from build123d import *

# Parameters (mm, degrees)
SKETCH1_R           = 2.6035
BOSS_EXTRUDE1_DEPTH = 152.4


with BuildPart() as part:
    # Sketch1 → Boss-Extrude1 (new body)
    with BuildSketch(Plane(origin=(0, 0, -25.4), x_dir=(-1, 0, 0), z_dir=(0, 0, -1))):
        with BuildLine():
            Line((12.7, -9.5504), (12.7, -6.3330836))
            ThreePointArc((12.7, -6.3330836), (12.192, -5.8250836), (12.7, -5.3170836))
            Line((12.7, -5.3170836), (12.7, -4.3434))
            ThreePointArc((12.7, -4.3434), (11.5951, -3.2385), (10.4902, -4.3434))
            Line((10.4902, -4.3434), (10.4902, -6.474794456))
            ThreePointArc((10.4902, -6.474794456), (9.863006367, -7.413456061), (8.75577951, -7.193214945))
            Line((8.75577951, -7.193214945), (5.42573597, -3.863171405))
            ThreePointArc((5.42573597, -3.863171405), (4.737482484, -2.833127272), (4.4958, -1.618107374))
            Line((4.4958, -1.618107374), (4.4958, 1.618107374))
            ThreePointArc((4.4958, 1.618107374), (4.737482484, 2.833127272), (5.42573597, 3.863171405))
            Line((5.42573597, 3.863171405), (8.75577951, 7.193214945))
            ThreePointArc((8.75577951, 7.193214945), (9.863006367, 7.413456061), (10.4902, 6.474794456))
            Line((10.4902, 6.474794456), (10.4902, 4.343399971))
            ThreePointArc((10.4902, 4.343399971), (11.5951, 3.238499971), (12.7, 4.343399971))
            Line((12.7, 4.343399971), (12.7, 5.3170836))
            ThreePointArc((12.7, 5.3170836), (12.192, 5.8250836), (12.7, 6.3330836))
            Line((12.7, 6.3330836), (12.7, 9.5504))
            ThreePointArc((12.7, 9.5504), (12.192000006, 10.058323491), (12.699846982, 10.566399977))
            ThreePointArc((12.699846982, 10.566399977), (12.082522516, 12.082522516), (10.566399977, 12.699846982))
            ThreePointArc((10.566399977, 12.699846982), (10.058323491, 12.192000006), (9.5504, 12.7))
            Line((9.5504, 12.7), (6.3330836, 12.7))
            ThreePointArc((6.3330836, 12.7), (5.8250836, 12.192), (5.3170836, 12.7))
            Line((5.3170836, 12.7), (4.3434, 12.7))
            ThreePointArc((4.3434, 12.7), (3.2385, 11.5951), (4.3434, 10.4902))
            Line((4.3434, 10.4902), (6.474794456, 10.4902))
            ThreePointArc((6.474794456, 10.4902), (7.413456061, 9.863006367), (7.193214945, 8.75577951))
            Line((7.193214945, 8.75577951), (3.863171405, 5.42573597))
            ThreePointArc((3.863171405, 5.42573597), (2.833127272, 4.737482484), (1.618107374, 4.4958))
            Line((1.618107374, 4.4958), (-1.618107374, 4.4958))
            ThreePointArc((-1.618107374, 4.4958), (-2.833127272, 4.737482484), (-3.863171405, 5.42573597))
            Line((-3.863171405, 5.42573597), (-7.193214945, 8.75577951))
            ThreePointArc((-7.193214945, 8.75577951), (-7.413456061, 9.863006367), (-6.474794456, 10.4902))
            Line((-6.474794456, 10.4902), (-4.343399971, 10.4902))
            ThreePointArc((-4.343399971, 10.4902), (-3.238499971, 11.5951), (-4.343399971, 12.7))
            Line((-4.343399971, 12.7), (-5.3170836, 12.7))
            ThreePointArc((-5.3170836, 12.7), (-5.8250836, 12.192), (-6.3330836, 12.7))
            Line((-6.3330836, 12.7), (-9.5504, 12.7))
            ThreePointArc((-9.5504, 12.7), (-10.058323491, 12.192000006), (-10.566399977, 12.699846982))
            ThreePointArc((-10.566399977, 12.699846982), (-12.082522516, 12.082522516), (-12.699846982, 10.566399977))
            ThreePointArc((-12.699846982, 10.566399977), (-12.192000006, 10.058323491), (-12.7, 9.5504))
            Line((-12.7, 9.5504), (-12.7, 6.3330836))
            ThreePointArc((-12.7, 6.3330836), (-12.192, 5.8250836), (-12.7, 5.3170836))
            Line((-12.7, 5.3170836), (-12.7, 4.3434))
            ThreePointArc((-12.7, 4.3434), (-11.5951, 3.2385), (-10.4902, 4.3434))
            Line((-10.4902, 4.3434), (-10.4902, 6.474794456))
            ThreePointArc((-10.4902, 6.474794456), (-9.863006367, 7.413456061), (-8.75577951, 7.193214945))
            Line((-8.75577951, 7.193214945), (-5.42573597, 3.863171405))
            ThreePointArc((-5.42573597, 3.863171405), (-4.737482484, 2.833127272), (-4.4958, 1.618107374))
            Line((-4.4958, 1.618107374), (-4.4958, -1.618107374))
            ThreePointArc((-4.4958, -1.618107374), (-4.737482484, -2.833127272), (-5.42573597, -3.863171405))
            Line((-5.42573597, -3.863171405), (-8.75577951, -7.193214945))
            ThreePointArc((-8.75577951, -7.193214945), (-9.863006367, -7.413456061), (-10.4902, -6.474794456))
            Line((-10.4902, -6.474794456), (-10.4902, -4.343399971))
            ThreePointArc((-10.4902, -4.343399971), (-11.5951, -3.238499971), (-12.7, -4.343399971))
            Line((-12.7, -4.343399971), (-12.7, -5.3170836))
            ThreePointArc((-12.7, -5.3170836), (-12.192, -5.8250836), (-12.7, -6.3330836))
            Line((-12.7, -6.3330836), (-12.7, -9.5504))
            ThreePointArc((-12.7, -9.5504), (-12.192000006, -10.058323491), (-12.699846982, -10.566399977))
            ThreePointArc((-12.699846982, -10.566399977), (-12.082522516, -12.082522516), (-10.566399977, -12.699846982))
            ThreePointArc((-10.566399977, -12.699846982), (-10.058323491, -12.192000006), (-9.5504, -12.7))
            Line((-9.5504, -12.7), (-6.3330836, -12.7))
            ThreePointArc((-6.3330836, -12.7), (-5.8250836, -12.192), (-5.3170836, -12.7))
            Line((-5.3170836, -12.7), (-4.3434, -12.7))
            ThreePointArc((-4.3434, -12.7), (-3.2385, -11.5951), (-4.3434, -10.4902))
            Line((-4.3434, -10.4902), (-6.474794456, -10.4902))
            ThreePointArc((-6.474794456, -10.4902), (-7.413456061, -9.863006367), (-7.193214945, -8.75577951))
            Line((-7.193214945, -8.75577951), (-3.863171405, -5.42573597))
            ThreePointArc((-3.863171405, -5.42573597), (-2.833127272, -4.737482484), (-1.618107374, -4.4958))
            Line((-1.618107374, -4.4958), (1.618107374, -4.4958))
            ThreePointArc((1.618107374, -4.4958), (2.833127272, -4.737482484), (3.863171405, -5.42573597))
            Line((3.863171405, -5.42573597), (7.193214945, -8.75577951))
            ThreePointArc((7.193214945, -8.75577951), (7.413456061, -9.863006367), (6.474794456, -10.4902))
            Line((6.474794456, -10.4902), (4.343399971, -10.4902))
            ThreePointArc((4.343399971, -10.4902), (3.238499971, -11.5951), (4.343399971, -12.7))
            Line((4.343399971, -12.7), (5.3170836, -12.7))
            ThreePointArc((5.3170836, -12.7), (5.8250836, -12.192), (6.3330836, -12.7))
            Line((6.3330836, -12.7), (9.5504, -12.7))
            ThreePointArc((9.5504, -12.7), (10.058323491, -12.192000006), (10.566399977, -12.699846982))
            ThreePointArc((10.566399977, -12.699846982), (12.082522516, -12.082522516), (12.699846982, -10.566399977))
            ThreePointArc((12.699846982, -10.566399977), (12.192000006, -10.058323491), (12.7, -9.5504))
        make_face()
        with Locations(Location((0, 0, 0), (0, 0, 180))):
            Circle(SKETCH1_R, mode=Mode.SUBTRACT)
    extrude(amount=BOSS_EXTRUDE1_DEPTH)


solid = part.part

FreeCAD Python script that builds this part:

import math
import FreeCAD as App
import Part
import Sketcher
from FreeCAD import Vector
Q = App.Units.Quantity

doc = App.newDocument("Part")
body = doc.addObject("PartDesign::Body", "Body")

# Sketch on XY plane
sketch1 = body.newObject("Sketcher::SketchObject", "Sketch")
sketch1.AttachmentSupport = (doc.getObject("XY_Plane"), [""])
sketch1.MapMode = "FlatFace"
sketch1.AttachmentOffset = App.Placement(Vector(0, 0, -1 * 25.4), App.Rotation())
sketch1.addGeometry(Part.LineSegment(Vector(-12.7, -9.6, 0), Vector(-12.7, -6.3, 0)), False)
sketch1.addGeometry(Part.ArcOfCircle(Part.Circle(Vector(-12.7, -5.8, 0), Vector(0, 0, 1), 0.5), math.radians(-90), math.radians(90)), False)
sketch1.addGeometry(Part.LineSegment(Vector(-12.7, -5.3, 0), Vector(-12.7, -4.3, 0)), False)
sketch1.addGeometry(Part.ArcOfCircle(Part.Circle(Vector(-11.6, -4.3, 0), Vector(0, 0, 1), 1.1), math.radians(0), math.radians(180)), False)
sketch1.addGeometry(Part.LineSegment(Vector(-10.5, -4.3, 0), Vector(-10.5, -6.5, 0)), False)
sketch1.addGeometry(Part.ArcOfCircle(Part.Circle(Vector(-9.5, -6.5, 0), Vector(0, 0, 1), 1), math.radians(180), math.radians(315)), False)
sketch1.addGeometry(Part.LineSegment(Vector(-8.8, -7.2, 0), Vector(-5.4, -3.9, 0)), False)
sketch1.addGeometry(Part.ArcOfCircle(Part.Circle(Vector(-7.7, -1.6, 0), Vector(0, 0, 1), 3.2), math.radians(-45), math.radians(0)), False)
sketch1.addGeometry(Part.LineSegment(Vector(-4.5, -1.6, 0), Vector(-4.5, 1.6, 0)), False)
sketch1.addGeometry(Part.ArcOfCircle(Part.Circle(Vector(-7.7, 1.6, 0), Vector(0, 0, 1), 3.2), math.radians(0), math.radians(45)), False)
sketch1.addGeometry(Part.LineSegment(Vector(-5.4, 3.9, 0), Vector(-8.8, 7.2, 0)), False)
sketch1.addGeometry(Part.ArcOfCircle(Part.Circle(Vector(-9.5, 6.5, 0), Vector(0, 0, 1), 1), math.radians(45), math.radians(180)), False)
sketch1.addGeometry(Part.LineSegment(Vector(-10.5, 6.5, 0), Vector(-10.5, 4.3, 0)), False)
sketch1.addGeometry(Part.ArcOfCircle(Part.Circle(Vector(-11.6, 4.3, 0), Vector(0, 0, 1), 1.1), math.radians(180), math.radians(360)), False)
sketch1.addGeometry(Part.LineSegment(Vector(-12.7, 4.3, 0), Vector(-12.7, 5.3, 0)), False)
sketch1.addGeometry(Part.ArcOfCircle(Part.Circle(Vector(-12.7, 5.8, 0), Vector(0, 0, 1), 0.5), math.radians(-90), math.radians(90)), False)
sketch1.addGeometry(Part.LineSegment(Vector(-12.7, 6.3, 0), Vector(-12.7, 9.6, 0)), False)
sketch1.addGeometry(Part.ArcOfCircle(Part.Circle(Vector(-12.7, 10.1, 0), Vector(0, 0, 1), 0.5), math.radians(-90), math.radians(90)), False)
sketch1.addGeometry(Part.ArcOfCircle(Part.Circle(Vector(-10.6, 10.6, 0), Vector(0, 0, 1), 2.1), math.radians(89), math.radians(181)), False)
sketch1.addGeometry(Part.ArcOfCircle(Part.Circle(Vector(-10.1, 12.7, 0), Vector(0, 0, 1), 0.5), math.radians(-180), math.radians(0)), False)
sketch1.addGeometry(Part.LineSegment(Vector(-9.6, 12.7, 0), Vector(-6.3, 12.7, 0)), False)
sketch1.addGeometry(Part.ArcOfCircle(Part.Circle(Vector(-5.8, 12.7, 0), Vector(0, 0, 1), 0.5), math.radians(180), math.radians(360)), False)
sketch1.addGeometry(Part.LineSegment(Vector(-5.3, 12.7, 0), Vector(-4.3, 12.7, 0)), False)
sketch1.addGeometry(Part.ArcOfCircle(Part.Circle(Vector(-4.3, 11.6, 0), Vector(0, 0, 1), 1.1), math.radians(-90), math.radians(90)), False)
sketch1.addGeometry(Part.LineSegment(Vector(-4.3, 10.5, 0), Vector(-6.5, 10.5, 0)), False)
sketch1.addGeometry(Part.ArcOfCircle(Part.Circle(Vector(-6.5, 9.5, 0), Vector(0, 0, 1), 1), math.radians(90), math.radians(225)), False)
sketch1.addGeometry(Part.LineSegment(Vector(-7.2, 8.8, 0), Vector(-3.9, 5.4, 0)), False)
sketch1.addGeometry(Part.ArcOfCircle(Part.Circle(Vector(-1.6, 7.7, 0), Vector(0, 0, 1), 3.2), math.radians(-135), math.radians(-90)), False)
sketch1.addGeometry(Part.LineSegment(Vector(-1.6, 4.5, 0), Vector(1.6, 4.5, 0)), False)
sketch1.addGeometry(Part.ArcOfCircle(Part.Circle(Vector(1.6, 7.7, 0), Vector(0, 0, 1), 3.2), math.radians(-90), math.radians(-45)), False)
sketch1.addGeometry(Part.LineSegment(Vector(3.9, 5.4, 0), Vector(7.2, 8.8, 0)), False)
sketch1.addGeometry(Part.ArcOfCircle(Part.Circle(Vector(6.5, 9.5, 0), Vector(0, 0, 1), 1), math.radians(-45), math.radians(90)), False)
sketch1.addGeometry(Part.LineSegment(Vector(6.5, 10.5, 0), Vector(4.3, 10.5, 0)), False)
sketch1.addGeometry(Part.ArcOfCircle(Part.Circle(Vector(4.3, 11.6, 0), Vector(0, 0, 1), 1.1), math.radians(90), math.radians(270)), False)
sketch1.addGeometry(Part.LineSegment(Vector(4.3, 12.7, 0), Vector(5.3, 12.7, 0)), False)
sketch1.addGeometry(Part.ArcOfCircle(Part.Circle(Vector(5.8, 12.7, 0), Vector(0, 0, 1), 0.5), math.radians(180), math.radians(360)), False)
sketch1.addGeometry(Part.LineSegment(Vector(6.3, 12.7, 0), Vector(9.6, 12.7, 0)), False)
sketch1.addGeometry(Part.ArcOfCircle(Part.Circle(Vector(10.1, 12.7, 0), Vector(0, 0, 1), 0.5), math.radians(180), math.radians(360)), False)
sketch1.addGeometry(Part.ArcOfCircle(Part.Circle(Vector(10.6, 10.6, 0), Vector(0, 0, 1), 2.1), math.radians(-1), math.radians(91)), False)
sketch1.addGeometry(Part.ArcOfCircle(Part.Circle(Vector(12.7, 10.1, 0), Vector(0, 0, 1), 0.5), math.radians(90), math.radians(270)), False)
sketch1.addGeometry(Part.LineSegment(Vector(12.7, 9.6, 0), Vector(12.7, 6.3, 0)), False)
sketch1.addGeometry(Part.ArcOfCircle(Part.Circle(Vector(12.7, 5.8, 0), Vector(0, 0, 1), 0.5), math.radians(90), math.radians(270)), False)
sketch1.addGeometry(Part.LineSegment(Vector(12.7, 5.3, 0), Vector(12.7, 4.3, 0)), False)
sketch1.addGeometry(Part.ArcOfCircle(Part.Circle(Vector(11.6, 4.3, 0), Vector(0, 0, 1), 1.1), math.radians(180), math.radians(360)), False)
sketch1.addGeometry(Part.LineSegment(Vector(10.5, 4.3, 0), Vector(10.5, 6.5, 0)), False)
sketch1.addGeometry(Part.ArcOfCircle(Part.Circle(Vector(9.5, 6.5, 0), Vector(0, 0, 1), 1), math.radians(0), math.radians(135)), False)
sketch1.addGeometry(Part.LineSegment(Vector(8.8, 7.2, 0), Vector(5.4, 3.9, 0)), False)
sketch1.addGeometry(Part.ArcOfCircle(Part.Circle(Vector(7.7, 1.6, 0), Vector(0, 0, 1), 3.2), math.radians(135), math.radians(180)), False)
sketch1.addGeometry(Part.LineSegment(Vector(4.5, 1.6, 0), Vector(4.5, -1.6, 0)), False)
sketch1.addGeometry(Part.ArcOfCircle(Part.Circle(Vector(7.7, -1.6, 0), Vector(0, 0, 1), 3.2), math.radians(180), math.radians(225)), False)
sketch1.addGeometry(Part.LineSegment(Vector(5.4, -3.9, 0), Vector(8.8, -7.2, 0)), False)
sketch1.addGeometry(Part.ArcOfCircle(Part.Circle(Vector(9.5, -6.5, 0), Vector(0, 0, 1), 1), math.radians(-135), math.radians(0)), False)
sketch1.addGeometry(Part.LineSegment(Vector(10.5, -6.5, 0), Vector(10.5, -4.3, 0)), False)
sketch1.addGeometry(Part.ArcOfCircle(Part.Circle(Vector(11.6, -4.3, 0), Vector(0, 0, 1), 1.1), math.radians(0), math.radians(180)), False)
sketch1.addGeometry(Part.LineSegment(Vector(12.7, -4.3, 0), Vector(12.7, -5.3, 0)), False)
sketch1.addGeometry(Part.ArcOfCircle(Part.Circle(Vector(12.7, -5.8, 0), Vector(0, 0, 1), 0.5), math.radians(90), math.radians(270)), False)
sketch1.addGeometry(Part.LineSegment(Vector(12.7, -6.3, 0), Vector(12.7, -9.6, 0)), False)
sketch1.addGeometry(Part.ArcOfCircle(Part.Circle(Vector(12.7, -10.1, 0), Vector(0, 0, 1), 0.5), math.radians(90), math.radians(270)), False)
sketch1.addGeometry(Part.ArcOfCircle(Part.Circle(Vector(10.6, -10.6, 0), Vector(0, 0, 1), 2.1), math.radians(-91), math.radians(1)), False)
sketch1.addGeometry(Part.ArcOfCircle(Part.Circle(Vector(10.1, -12.7, 0), Vector(0, 0, 1), 0.5), math.radians(0), math.radians(180)), False)
sketch1.addGeometry(Part.LineSegment(Vector(9.6, -12.7, 0), Vector(6.3, -12.7, 0)), False)
sketch1.addGeometry(Part.ArcOfCircle(Part.Circle(Vector(5.8, -12.7, 0), Vector(0, 0, 1), 0.5), math.radians(0), math.radians(180)), False)
sketch1.addGeometry(Part.LineSegment(Vector(5.3, -12.7, 0), Vector(4.3, -12.7, 0)), False)
sketch1.addGeometry(Part.ArcOfCircle(Part.Circle(Vector(4.3, -11.6, 0), Vector(0, 0, 1), 1.1), math.radians(90), math.radians(270)), False)
sketch1.addGeometry(Part.LineSegment(Vector(4.3, -10.5, 0), Vector(6.5, -10.5, 0)), False)
sketch1.addGeometry(Part.ArcOfCircle(Part.Circle(Vector(6.5, -9.5, 0), Vector(0, 0, 1), 1), math.radians(-90), math.radians(45)), False)
sketch1.addGeometry(Part.LineSegment(Vector(7.2, -8.8, 0), Vector(3.9, -5.4, 0)), False)
sketch1.addGeometry(Part.ArcOfCircle(Part.Circle(Vector(1.6, -7.7, 0), Vector(0, 0, 1), 3.2), math.radians(45), math.radians(90)), False)
sketch1.addGeometry(Part.LineSegment(Vector(1.6, -4.5, 0), Vector(-1.6, -4.5, 0)), False)
sketch1.addGeometry(Part.ArcOfCircle(Part.Circle(Vector(-1.6, -7.7, 0), Vector(0, 0, 1), 3.2), math.radians(90), math.radians(135)), False)
sketch1.addGeometry(Part.LineSegment(Vector(-3.9, -5.4, 0), Vector(-7.2, -8.8, 0)), False)
sketch1.addGeometry(Part.ArcOfCircle(Part.Circle(Vector(-6.5, -9.5, 0), Vector(0, 0, 1), 1), math.radians(135), math.radians(270)), False)
sketch1.addGeometry(Part.LineSegment(Vector(-6.5, -10.5, 0), Vector(-4.3, -10.5, 0)), False)
sketch1.addGeometry(Part.ArcOfCircle(Part.Circle(Vector(-4.3, -11.6, 0), Vector(0, 0, 1), 1.1), math.radians(-90), math.radians(90)), False)
sketch1.addGeometry(Part.LineSegment(Vector(-4.3, -12.7, 0), Vector(-5.3, -12.7, 0)), False)
sketch1.addGeometry(Part.ArcOfCircle(Part.Circle(Vector(-5.8, -12.7, 0), Vector(0, 0, 1), 0.5), math.radians(0), math.radians(180)), False)
sketch1.addGeometry(Part.LineSegment(Vector(-6.3, -12.7, 0), Vector(-9.6, -12.7, 0)), False)
sketch1.addGeometry(Part.ArcOfCircle(Part.Circle(Vector(-10.1, -12.7, 0), Vector(0, 0, 1), 0.5), math.radians(0), math.radians(180)), False)
sketch1.addGeometry(Part.ArcOfCircle(Part.Circle(Vector(-10.6, -10.6, 0), Vector(0, 0, 1), 2.1), math.radians(179), math.radians(271)), False)
sketch1.addGeometry(Part.ArcOfCircle(Part.Circle(Vector(-12.7, -10.1, 0), Vector(0, 0, 1), 0.5), math.radians(-90), math.radians(90)), False)
sketch1.addGeometry(Part.Circle(Vector(0, 0, 0), Vector(0, 0, 1), 2.6), False)
sketch1.addConstraint(Sketcher.Constraint("Coincident", 0, 2, 1, 1))
sketch1.addConstraint(Sketcher.Constraint("Coincident", 1, 2, 2, 1))
sketch1.addConstraint(Sketcher.Constraint("Tangent", 2, 2, 3, 2))
sketch1.addConstraint(Sketcher.Constraint("Tangent", 3, 1, 4, 1))
sketch1.addConstraint(Sketcher.Constraint("Tangent", 4, 2, 5, 1))
sketch1.addConstraint(Sketcher.Constraint("Tangent", 5, 2, 6, 1))
sketch1.addConstraint(Sketcher.Constraint("Tangent", 6, 2, 7, 1))
sketch1.addConstraint(Sketcher.Constraint("Tangent", 7, 2, 8, 1))
sketch1.addConstraint(Sketcher.Constraint("Tangent", 8, 2, 9, 1))
sketch1.addConstraint(Sketcher.Constraint("Tangent", 9, 2, 10, 1))
sketch1.addConstraint(Sketcher.Constraint("Tangent", 10, 2, 11, 1))
sketch1.addConstraint(Sketcher.Constraint("Tangent", 11, 2, 12, 1))
sketch1.addConstraint(Sketcher.Constraint("Tangent", 12, 2, 13, 2))
sketch1.addConstraint(Sketcher.Constraint("Tangent", 13, 1, 14, 1))
sketch1.addConstraint(Sketcher.Constraint("Coincident", 14, 2, 15, 1))
sketch1.addConstraint(Sketcher.Constraint("Coincident", 15, 2, 16, 1))
sketch1.addConstraint(Sketcher.Constraint("Coincident", 16, 2, 17, 1))
sketch1.addConstraint(Sketcher.Constraint("Coincident", 17, 2, 18, 2))
sketch1.addConstraint(Sketcher.Constraint("Coincident", 18, 1, 19, 1))
sketch1.addConstraint(Sketcher.Constraint("Coincident", 19, 2, 20, 1))
sketch1.addConstraint(Sketcher.Constraint("Coincident", 20, 2, 21, 1))
sketch1.addConstraint(Sketcher.Constraint("Coincident", 21, 2, 22, 1))
sketch1.addConstraint(Sketcher.Constraint("Tangent", 22, 2, 23, 2))
sketch1.addConstraint(Sketcher.Constraint("Tangent", 23, 1, 24, 1))
sketch1.addConstraint(Sketcher.Constraint("Tangent", 24, 2, 25, 1))
sketch1.addConstraint(Sketcher.Constraint("Tangent", 25, 2, 26, 1))
sketch1.addConstraint(Sketcher.Constraint("Tangent", 26, 2, 27, 1))
sketch1.addConstraint(Sketcher.Constraint("Tangent", 27, 2, 28, 1))
sketch1.addConstraint(Sketcher.Constraint("Tangent", 28, 2, 29, 1))
sketch1.addConstraint(Sketcher.Constraint("Tangent", 29, 2, 30, 1))
sketch1.addConstraint(Sketcher.Constraint("Tangent", 30, 2, 31, 1))
sketch1.addConstraint(Sketcher.Constraint("Tangent", 31, 2, 32, 1))
sketch1.addConstraint(Sketcher.Constraint("Tangent", 32, 2, 33, 2))
sketch1.addConstraint(Sketcher.Constraint("Tangent", 33, 1, 34, 1))
sketch1.addConstraint(Sketcher.Constraint("Coincident", 34, 2, 35, 1))
sketch1.addConstraint(Sketcher.Constraint("Coincident", 35, 2, 36, 1))
sketch1.addConstraint(Sketcher.Constraint("Coincident", 36, 2, 37, 1))
sketch1.addConstraint(Sketcher.Constraint("Coincident", 37, 2, 38, 2))
sketch1.addConstraint(Sketcher.Constraint("Coincident", 38, 1, 39, 1))
sketch1.addConstraint(Sketcher.Constraint("Coincident", 39, 2, 40, 1))
sketch1.addConstraint(Sketcher.Constraint("Coincident", 40, 2, 41, 1))
sketch1.addConstraint(Sketcher.Constraint("Coincident", 41, 2, 42, 1))
sketch1.addConstraint(Sketcher.Constraint("Tangent", 42, 2, 43, 2))
sketch1.addConstraint(Sketcher.Constraint("Tangent", 43, 1, 44, 1))
sketch1.addConstraint(Sketcher.Constraint("Tangent", 44, 2, 45, 1))
sketch1.addConstraint(Sketcher.Constraint("Tangent", 45, 2, 46, 1))
sketch1.addConstraint(Sketcher.Constraint("Tangent", 46, 2, 47, 1))
sketch1.addConstraint(Sketcher.Constraint("Tangent", 47, 2, 48, 1))
sketch1.addConstraint(Sketcher.Constraint("Tangent", 48, 2, 49, 1))
sketch1.addConstraint(Sketcher.Constraint("Tangent", 49, 2, 50, 1))
sketch1.addConstraint(Sketcher.Constraint("Tangent", 50, 2, 51, 1))
sketch1.addConstraint(Sketcher.Constraint("Tangent", 51, 2, 52, 1))
sketch1.addConstraint(Sketcher.Constraint("Tangent", 52, 2, 53, 2))
sketch1.addConstraint(Sketcher.Constraint("Tangent", 53, 1, 54, 1))
sketch1.addConstraint(Sketcher.Constraint("Coincident", 54, 2, 55, 1))
sketch1.addConstraint(Sketcher.Constraint("Coincident", 55, 2, 56, 1))
sketch1.addConstraint(Sketcher.Constraint("Coincident", 56, 2, 57, 1))
sketch1.addConstraint(Sketcher.Constraint("Coincident", 57, 2, 58, 2))
sketch1.addConstraint(Sketcher.Constraint("Coincident", 58, 1, 59, 1))
sketch1.addConstraint(Sketcher.Constraint("Coincident", 59, 2, 60, 1))
sketch1.addConstraint(Sketcher.Constraint("Coincident", 60, 2, 61, 1))
sketch1.addConstraint(Sketcher.Constraint("Coincident", 61, 2, 62, 1))
sketch1.addConstraint(Sketcher.Constraint("Tangent", 62, 2, 63, 2))
sketch1.addConstraint(Sketcher.Constraint("Tangent", 63, 1, 64, 1))
sketch1.addConstraint(Sketcher.Constraint("Tangent", 64, 2, 65, 1))
sketch1.addConstraint(Sketcher.Constraint("Tangent", 65, 2, 66, 1))
sketch1.addConstraint(Sketcher.Constraint("Tangent", 66, 2, 67, 1))
sketch1.addConstraint(Sketcher.Constraint("Tangent", 67, 2, 68, 1))
sketch1.addConstraint(Sketcher.Constraint("Tangent", 68, 2, 69, 1))
sketch1.addConstraint(Sketcher.Constraint("Tangent", 69, 2, 70, 1))
sketch1.addConstraint(Sketcher.Constraint("Tangent", 70, 2, 71, 1))
sketch1.addConstraint(Sketcher.Constraint("Tangent", 71, 2, 72, 1))
sketch1.addConstraint(Sketcher.Constraint("Tangent", 72, 2, 73, 2))
sketch1.addConstraint(Sketcher.Constraint("Tangent", 73, 1, 74, 1))
sketch1.addConstraint(Sketcher.Constraint("Coincident", 74, 2, 75, 1))
sketch1.addConstraint(Sketcher.Constraint("Coincident", 75, 2, 76, 1))
sketch1.addConstraint(Sketcher.Constraint("Coincident", 76, 2, 77, 1))
sketch1.addConstraint(Sketcher.Constraint("Coincident", 77, 2, 78, 2))
sketch1.addConstraint(Sketcher.Constraint("Coincident", 78, 1, 79, 1))
sketch1.addConstraint(Sketcher.Constraint("Coincident", 79, 2, 0, 1))
sketch1.addConstraint(Sketcher.Constraint("Vertical", 0))
sketch1.addConstraint(Sketcher.Constraint("Vertical", 2))
sketch1.addConstraint(Sketcher.Constraint("Vertical", 4))
sketch1.addConstraint(Sketcher.Constraint("Vertical", 8))
sketch1.addConstraint(Sketcher.Constraint("Vertical", 12))
sketch1.addConstraint(Sketcher.Constraint("Vertical", 14))
sketch1.addConstraint(Sketcher.Constraint("Vertical", 16))
sketch1.addConstraint(Sketcher.Constraint("Horizontal", 20))
sketch1.addConstraint(Sketcher.Constraint("Horizontal", 22))
sketch1.addConstraint(Sketcher.Constraint("Horizontal", 24))
sketch1.addConstraint(Sketcher.Constraint("Horizontal", 28))
sketch1.addConstraint(Sketcher.Constraint("Horizontal", 32))
sketch1.addConstraint(Sketcher.Constraint("Horizontal", 34))
sketch1.addConstraint(Sketcher.Constraint("Horizontal", 36))
sketch1.addConstraint(Sketcher.Constraint("Vertical", 40))
sketch1.addConstraint(Sketcher.Constraint("Vertical", 42))
sketch1.addConstraint(Sketcher.Constraint("Vertical", 44))
sketch1.addConstraint(Sketcher.Constraint("Vertical", 48))
sketch1.addConstraint(Sketcher.Constraint("Vertical", 52))
sketch1.addConstraint(Sketcher.Constraint("Vertical", 54))
sketch1.addConstraint(Sketcher.Constraint("Vertical", 56))
sketch1.addConstraint(Sketcher.Constraint("Horizontal", 60))
sketch1.addConstraint(Sketcher.Constraint("Horizontal", 62))
sketch1.addConstraint(Sketcher.Constraint("Horizontal", 64))
sketch1.addConstraint(Sketcher.Constraint("Horizontal", 68))
sketch1.addConstraint(Sketcher.Constraint("Horizontal", 72))
sketch1.addConstraint(Sketcher.Constraint("Horizontal", 74))
sketch1.addConstraint(Sketcher.Constraint("Horizontal", 76))
sketch1.addConstraint(Sketcher.Constraint("Coincident", 80, 3, -1, 1))
sketch1.addConstraint(Sketcher.Constraint("Equal", 7, 9))
sketch1.addConstraint(Sketcher.Constraint("Equal", 5, 11))
sketch1.addConstraint(Sketcher.Constraint("Equal", 3, 13))
sketch1.addConstraint(Sketcher.Constraint("Equal", 1, 15))
sketch1.addConstraint(Sketcher.Constraint("Equal", 15, 17))
sketch1.addConstraint(Sketcher.Constraint("Equal", 17, 19))
sketch1.addConstraint(Sketcher.Constraint("Equal", 19, 21))
sketch1.addConstraint(Sketcher.Constraint("Equal", 13, 23))
sketch1.addConstraint(Sketcher.Constraint("Equal", 11, 25))
sketch1.addConstraint(Sketcher.Constraint("Equal", 9, 27))
sketch1.addConstraint(Sketcher.Constraint("Equal", 27, 29))
sketch1.addConstraint(Sketcher.Constraint("Equal", 25, 31))
sketch1.addConstraint(Sketcher.Constraint("Equal", 23, 33))
sketch1.addConstraint(Sketcher.Constraint("Equal", 21, 35))
sketch1.addConstraint(Sketcher.Constraint("Equal", 35, 37))
sketch1.addConstraint(Sketcher.Constraint("Equal", 18, 38))
sketch1.addConstraint(Sketcher.Constraint("Equal", 37, 39))
sketch1.addConstraint(Sketcher.Constraint("Equal", 39, 41))
sketch1.addConstraint(Sketcher.Constraint("Equal", 33, 43))
sketch1.addConstraint(Sketcher.Constraint("Equal", 31, 45))
sketch1.addConstraint(Sketcher.Constraint("Equal", 29, 47))
sketch1.addConstraint(Sketcher.Constraint("Equal", 47, 49))
sketch1.addConstraint(Sketcher.Constraint("Equal", 45, 51))
sketch1.addConstraint(Sketcher.Constraint("Equal", 43, 53))
sketch1.addConstraint(Sketcher.Constraint("Equal", 41, 55))
sketch1.addConstraint(Sketcher.Constraint("Equal", 55, 57))
sketch1.addConstraint(Sketcher.Constraint("Equal", 38, 58))
sketch1.addConstraint(Sketcher.Constraint("Equal", 57, 59))
sketch1.addConstraint(Sketcher.Constraint("Equal", 59, 61))
sketch1.addConstraint(Sketcher.Constraint("Equal", 53, 63))
sketch1.addConstraint(Sketcher.Constraint("Equal", 51, 65))
sketch1.addConstraint(Sketcher.Constraint("Equal", 49, 67))
sketch1.addConstraint(Sketcher.Constraint("Equal", 67, 69))
sketch1.addConstraint(Sketcher.Constraint("Equal", 65, 71))
sketch1.addConstraint(Sketcher.Constraint("Equal", 63, 73))
sketch1.addConstraint(Sketcher.Constraint("Equal", 61, 75))
sketch1.addConstraint(Sketcher.Constraint("Equal", 75, 77))
sketch1.addConstraint(Sketcher.Constraint("Equal", 58, 78))
sketch1.addConstraint(Sketcher.Constraint("Equal", 77, 79))
sketch1.addConstraint(Sketcher.Constraint("Symmetric", 1, 3, 41, 3, -1, 1))
sketch1.addConstraint(Sketcher.Constraint("Symmetric", 3, 3, 43, 3, -1, 1))
sketch1.addConstraint(Sketcher.Constraint("Symmetric", 7, 3, 47, 3, -1, 1))
sketch1.addConstraint(Sketcher.Constraint("Symmetric", 11, 3, 51, 3, -1, 1))
sketch1.addConstraint(Sketcher.Constraint("Symmetric", 15, 3, 55, 3, -1, 1))
sketch1.addConstraint(Sketcher.Constraint("Symmetric", 17, 3, 57, 3, -1, 1))
sketch1.addConstraint(Sketcher.Constraint("Symmetric", 18, 3, 58, 3, -1, 1))
sketch1.addConstraint(Sketcher.Constraint("Symmetric", 19, 3, 59, 3, -1, 1))
sketch1.addConstraint(Sketcher.Constraint("Symmetric", 21, 3, 61, 3, -1, 1))
sketch1.addConstraint(Sketcher.Constraint("Symmetric", 23, 3, 63, 3, -1, 1))
sketch1.addConstraint(Sketcher.Constraint("Symmetric", 27, 3, 67, 3, -1, 1))
sketch1.addConstraint(Sketcher.Constraint("Symmetric", 31, 3, 71, 3, -1, 1))
sketch1.addConstraint(Sketcher.Constraint("Symmetric", 35, 3, 75, 3, -1, 1))
sketch1.addConstraint(Sketcher.Constraint("Symmetric", 37, 3, 77, 3, -1, 1))
sketch1.addConstraint(Sketcher.Constraint("Symmetric", 38, 3, 78, 3, -1, 1))
sketch1.addConstraint(Sketcher.Constraint("Symmetric", 39, 3, 79, 3, -1, 1))
sketch1.addConstraint(Sketcher.Constraint("Symmetric", 25, 3, 31, 3, -2))
sketch1.addConstraint(Sketcher.Constraint("Symmetric", 21, 3, 35, 3, -2))
sketch1.addConstraint(Sketcher.Constraint("Symmetric", 19, 3, 37, 3, -2))
sketch1.addConstraint(Sketcher.Constraint("Symmetric", 18, 3, 38, 3, -2))
sketch1.addConstraint(Sketcher.Constraint("Symmetric", 17, 3, 39, 3, -2))
sketch1.addConstraint(Sketcher.Constraint("Symmetric", 15, 3, 41, 3, -2))
sketch1.addConstraint(Sketcher.Constraint("Symmetric", 13, 3, 43, 3, -2))
sketch1.addConstraint(Sketcher.Constraint("Symmetric", 10, 2, 45, 2, -2))
sketch1.addConstraint(Sketcher.Constraint("Symmetric", 6, 2, 49, 2, -2))
sketch1.addConstraint(Sketcher.Constraint("Symmetric", 66, 2, 69, 2, -2))
sketch1.addConstraint(Sketcher.Constraint("Perpendicular", 6, 10))
sketch1.addConstraint(Sketcher.Constraint("Parallel", 10, 26))
sketch1.addConstraint(Sketcher.Constraint("Perpendicular", 26, 30))
sketch1.addConstraint(Sketcher.Constraint("Horizontal", 19, 3, 21, 3))
sketch1.addConstraint(Sketcher.Constraint("Horizontal", 3, 3, 53, 3))
sketch1.addConstraint(Sketcher.Constraint("Horizontal", 37, 3, 19, 2))
sketch1.addConstraint(Sketcher.Constraint("Horizontal", 20, 2, 21, 2))
sketch1.addConstraint(Sketcher.Constraint("Horizontal", 34, 2, 35, 2))
sketch1.addConstraint(Sketcher.Constraint("Horizontal", 77, 3, 59, 2))
sketch1.addConstraint(Sketcher.Constraint("Horizontal", 74, 2, 75, 2))
sketch1.addConstraint(Sketcher.Constraint("Vertical", 15, 3, 17, 3))
sketch1.addConstraint(Sketcher.Constraint("Vertical", 33, 3, 63, 3))
sketch1.addConstraint(Sketcher.Constraint("Vertical", 23, 3, 73, 3))
sketch1.addConstraint(Sketcher.Constraint("Vertical", 79, 3, 0, 2))
sketch1.addConstraint(Sketcher.Constraint("Vertical", 0, 2, 1, 2))
sketch1.addConstraint(Sketcher.Constraint("Vertical", 14, 2, 15, 2))
sketch1.addConstraint(Sketcher.Constraint("Vertical", 57, 3, 39, 2))
sketch1.addConstraint(Sketcher.Constraint("Vertical", 54, 2, 55, 2))
sketch1.addConstraint(Sketcher.Constraint("Equal", 76, 0))
sketch1.addConstraint(Sketcher.Constraint("Equal", 74, 2))
sketch1.addConstraint(Sketcher.Constraint("Equal", 72, 4))
sketch1.addConstraint(Sketcher.Constraint("Equal", 68, 8))
sketch1.addConstraint(Sketcher.Constraint("Equal", 10, 26))
sketch1.addConstraint(Sketcher.Constraint("Radius", 1, Q("0.02 in")))
sketch1.addConstraint(Sketcher.Constraint("Radius", 5, Q("0.04 in")))
sketch1.addConstraint(Sketcher.Constraint("Diameter", 80, Q("0.205 in")))
sketch1.addConstraint(Sketcher.Constraint("Radius", 7, Q("0.125 in")))
sketch1.addConstraint(Sketcher.Constraint("Radius", 18, Q("0.083 in")))
sketch1.addConstraint(Sketcher.Constraint("DistanceX", 1, 3, -1, 1, Q("0.5 in")))
sketch1.addConstraint(Sketcher.Constraint("DistanceY", -1, 1, 19, 3, Q("0.5 in")))
sketch1.addConstraint(Sketcher.Constraint("Radius", 3, Q("0.0435 in")))
sketch1.addConstraint(Sketcher.Constraint("DistanceY", 3, 3, -1, 1, Q("0.171 in")))
sketch1.addConstraint(Sketcher.Constraint("DistanceX", 7, 3, -1, 1, Q("0.302 in")))
sketch1.addConstraint(Sketcher.Constraint("DistanceY", -1, 1, 17, 3, Q("0.396 in")))
sketch1.addConstraint(Sketcher.Constraint("DistanceX", 18, 3, -1, 1, Q("0.417 in")))
sketch1.addConstraint(Sketcher.Constraint("DistanceY", -1, 1, 18, 3, Q("0.417 in")))
sketch1.addConstraint(Sketcher.Constraint("DistanceX", 20, 1, 20, 2, Q("3.217316 mm")))
sketch1.addConstraint(Sketcher.Constraint("DistanceX", 24, 2, 24, 1, Q("2.131394 mm")))
pad1 = body.newObject("PartDesign::Pad", "Pad")
pad1.Profile = sketch1
pad1.Length = Q("6 in")
pad1.Reversed = True

doc.recompute()
